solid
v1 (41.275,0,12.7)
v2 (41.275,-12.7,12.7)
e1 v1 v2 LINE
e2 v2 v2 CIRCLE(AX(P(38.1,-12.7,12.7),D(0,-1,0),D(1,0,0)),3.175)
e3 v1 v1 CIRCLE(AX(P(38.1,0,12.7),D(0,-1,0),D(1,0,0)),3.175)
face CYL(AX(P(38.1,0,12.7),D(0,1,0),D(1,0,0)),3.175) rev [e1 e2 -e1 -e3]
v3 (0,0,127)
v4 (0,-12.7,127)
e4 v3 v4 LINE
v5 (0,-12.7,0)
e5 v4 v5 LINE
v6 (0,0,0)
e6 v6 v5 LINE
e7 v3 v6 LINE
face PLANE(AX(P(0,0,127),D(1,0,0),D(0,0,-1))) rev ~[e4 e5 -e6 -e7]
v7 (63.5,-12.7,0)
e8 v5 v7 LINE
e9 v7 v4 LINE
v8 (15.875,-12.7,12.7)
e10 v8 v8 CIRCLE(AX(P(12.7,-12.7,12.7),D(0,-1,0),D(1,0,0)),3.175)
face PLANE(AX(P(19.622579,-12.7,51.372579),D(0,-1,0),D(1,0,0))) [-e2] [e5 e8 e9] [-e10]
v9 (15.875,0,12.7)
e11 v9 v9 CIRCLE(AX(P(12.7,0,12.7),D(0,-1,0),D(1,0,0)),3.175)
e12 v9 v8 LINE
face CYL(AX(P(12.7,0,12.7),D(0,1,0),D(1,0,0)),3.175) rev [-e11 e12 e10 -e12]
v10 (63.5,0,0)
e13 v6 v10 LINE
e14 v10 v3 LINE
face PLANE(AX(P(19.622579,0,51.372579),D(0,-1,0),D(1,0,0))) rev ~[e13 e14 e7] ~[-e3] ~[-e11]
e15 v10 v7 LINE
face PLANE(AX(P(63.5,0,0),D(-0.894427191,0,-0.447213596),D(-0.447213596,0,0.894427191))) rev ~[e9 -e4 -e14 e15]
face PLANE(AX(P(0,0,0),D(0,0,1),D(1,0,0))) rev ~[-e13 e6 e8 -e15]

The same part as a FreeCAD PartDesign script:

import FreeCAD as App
import Part
import Sketcher

V = App.Vector
Q = App.Units.Quantity

doc = App.newDocument("Part")
params = doc.addObject("Spreadsheet::Sheet", "Params")
for row, (alias, value) in enumerate([
    ("sketch1_diameter", "0.25 in"),
    ("sketch1_height", "5 in"),
    ("sketch1_width", "2.5 in"),
    ("pad1_length", "0.5 in"),
], start=1):
    params.set(f"A{row}", alias)
    params.set(f"B{row}", "=" + value)
    params.setAlias(f"B{row}", alias)

body = doc.addObject("PartDesign::Body", "Body")

sketch1 = body.newObject("Sketcher::SketchObject", "Sketch")
sketch1.AttachmentSupport = (doc.getObject("XZ_Plane"), [""])
sketch1.MapMode = "FlatFace"
sketch1.addGeometry([
    Part.LineSegment(V(0, 127, 0), V(0, 0, 0)),
    Part.LineSegment(V(0, 0, 0), V(63.5, 0, 0)),
    Part.LineSegment(V(63.5, 0, 0), V(0, 127, 0)),
    Part.Circle(V(12.7, 12.7, 0), V(0, 0, 1), 3.2),
    Part.Circle(V(38.1, 12.7, 0), V(0, 0, 1), 3.2),
], False)
sketch1.addConstraint([
    Sketcher.Constraint("Coincident", 0, 2, 1, 1),
    Sketcher.Constraint("Coincident", 1, 2, 2, 1),
    Sketcher.Constraint("Coincident", 2, 2, 0, 1),
    Sketcher.Constraint("Vertical", 0),
    Sketcher.Constraint("Horizontal", 1),
    Sketcher.Constraint("Coincident", 0, 2, -1, 1),
    Sketcher.Constraint("Equal", 3, 4),
    Sketcher.Constraint("Horizontal", 3, 3, 4, 3),
    Sketcher.Constraint("Diameter", 3, Q("0.25 in")),
    Sketcher.Constraint("DistanceY", 0, 2, 0, 1, Q("5 in")),
    Sketcher.Constraint("DistanceX", 1, 1, 1, 2, Q("2.5 in")),
    Sketcher.Constraint("DistanceX", 3, 3, 4, 3, Q("1 in")),
    Sketcher.Constraint("DistanceX", 4, 3, 1, 2, Q("1 in")),
    Sketcher.Constraint("DistanceY", -1, 1, 3, 3, Q("0.5 in")),
])
sketch1.setExpression("Constraints[8]", "Params.sketch1_diameter")
sketch1.setExpression("Constraints[9]", "Params.sketch1_height")
sketch1.setExpression("Constraints[10]", "Params.sketch1_width")
pad1 = body.newObject("PartDesign::Pad", "Pad")
pad1.Profile = sketch1
pad1.setExpression("Length", "Params.pad1_length")

doc.recompute()
